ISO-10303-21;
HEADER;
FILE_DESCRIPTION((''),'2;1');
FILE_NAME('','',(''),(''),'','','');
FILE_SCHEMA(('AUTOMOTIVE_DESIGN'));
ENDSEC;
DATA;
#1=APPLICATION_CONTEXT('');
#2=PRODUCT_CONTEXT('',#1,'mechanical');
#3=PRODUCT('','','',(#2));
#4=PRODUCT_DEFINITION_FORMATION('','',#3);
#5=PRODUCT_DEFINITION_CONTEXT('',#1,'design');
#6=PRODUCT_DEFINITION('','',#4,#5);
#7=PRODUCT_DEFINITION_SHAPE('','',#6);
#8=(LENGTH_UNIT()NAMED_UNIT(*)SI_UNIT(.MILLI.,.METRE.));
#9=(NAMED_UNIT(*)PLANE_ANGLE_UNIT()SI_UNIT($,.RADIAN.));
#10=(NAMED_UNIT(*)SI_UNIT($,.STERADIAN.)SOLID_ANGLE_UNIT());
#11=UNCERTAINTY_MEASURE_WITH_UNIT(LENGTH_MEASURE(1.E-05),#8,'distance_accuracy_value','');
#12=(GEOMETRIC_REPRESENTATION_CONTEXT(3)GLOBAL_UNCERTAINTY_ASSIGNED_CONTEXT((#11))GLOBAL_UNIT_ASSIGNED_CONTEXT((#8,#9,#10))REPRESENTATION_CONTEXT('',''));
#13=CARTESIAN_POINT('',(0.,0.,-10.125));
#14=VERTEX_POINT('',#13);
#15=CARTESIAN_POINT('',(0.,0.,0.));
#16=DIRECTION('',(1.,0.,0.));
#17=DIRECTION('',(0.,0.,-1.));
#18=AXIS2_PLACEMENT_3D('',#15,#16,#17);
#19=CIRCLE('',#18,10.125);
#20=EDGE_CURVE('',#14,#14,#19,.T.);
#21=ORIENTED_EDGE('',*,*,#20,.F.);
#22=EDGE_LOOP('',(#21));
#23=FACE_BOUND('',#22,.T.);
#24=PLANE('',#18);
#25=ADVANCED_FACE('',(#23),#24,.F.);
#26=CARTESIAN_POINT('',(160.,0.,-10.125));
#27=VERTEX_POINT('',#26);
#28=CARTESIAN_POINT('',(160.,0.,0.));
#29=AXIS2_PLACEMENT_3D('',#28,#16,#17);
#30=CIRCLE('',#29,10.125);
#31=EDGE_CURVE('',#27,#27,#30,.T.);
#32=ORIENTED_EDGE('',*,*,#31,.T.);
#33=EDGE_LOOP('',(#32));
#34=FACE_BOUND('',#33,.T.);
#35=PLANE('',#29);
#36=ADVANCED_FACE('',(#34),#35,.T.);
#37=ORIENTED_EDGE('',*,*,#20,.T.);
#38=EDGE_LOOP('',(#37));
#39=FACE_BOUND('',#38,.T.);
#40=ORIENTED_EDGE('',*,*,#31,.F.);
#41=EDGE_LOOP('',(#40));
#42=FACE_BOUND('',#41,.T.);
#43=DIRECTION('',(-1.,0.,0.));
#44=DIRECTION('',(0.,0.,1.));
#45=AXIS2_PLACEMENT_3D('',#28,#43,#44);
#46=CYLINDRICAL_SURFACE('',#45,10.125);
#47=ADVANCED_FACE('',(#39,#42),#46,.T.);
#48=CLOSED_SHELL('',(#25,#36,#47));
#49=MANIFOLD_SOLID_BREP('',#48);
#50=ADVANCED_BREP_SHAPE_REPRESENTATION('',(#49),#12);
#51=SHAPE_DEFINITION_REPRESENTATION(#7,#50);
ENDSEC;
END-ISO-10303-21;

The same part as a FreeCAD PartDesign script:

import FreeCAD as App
import Part
import Sketcher

V = App.Vector

doc = App.newDocument("Part")
params = doc.addObject("Spreadsheet::Sheet", "Params")
for row, (alias, value) in enumerate([
    ("sketch1_diameter", "20.25 mm"),
    ("pad1_length", "160 mm"),
], start=1):
    params.set(f"A{row}", alias)
    params.set(f"B{row}", "=" + value)
    params.setAlias(f"B{row}", alias)

body = doc.addObject("PartDesign::Body", "Body")

# Sketch on YZ plane
sketch1 = body.newObject("Sketcher::SketchObject", "Sketch")
sketch1.AttachmentSupport = (doc.getObject("YZ_Plane"), [""])
sketch1.MapMode = "FlatFace"
sketch1.addGeometry(Part.Circle(V(0, 0, 0), V(0, 0, 1), 10), False)
sketch1.addConstraint([
    Sketcher.Constraint("Coincident", 0, 3, -1, 1),
    Sketcher.Constraint("Diameter", 0, 20.25),
])
sketch1.setExpression("Constraints[1]", "Params.sketch1_diameter")
pad1 = body.newObject("PartDesign::Pad", "Pad")
pad1.Profile = sketch1
pad1.setExpression("Length", "Params.pad1_length")

doc.recompute()
